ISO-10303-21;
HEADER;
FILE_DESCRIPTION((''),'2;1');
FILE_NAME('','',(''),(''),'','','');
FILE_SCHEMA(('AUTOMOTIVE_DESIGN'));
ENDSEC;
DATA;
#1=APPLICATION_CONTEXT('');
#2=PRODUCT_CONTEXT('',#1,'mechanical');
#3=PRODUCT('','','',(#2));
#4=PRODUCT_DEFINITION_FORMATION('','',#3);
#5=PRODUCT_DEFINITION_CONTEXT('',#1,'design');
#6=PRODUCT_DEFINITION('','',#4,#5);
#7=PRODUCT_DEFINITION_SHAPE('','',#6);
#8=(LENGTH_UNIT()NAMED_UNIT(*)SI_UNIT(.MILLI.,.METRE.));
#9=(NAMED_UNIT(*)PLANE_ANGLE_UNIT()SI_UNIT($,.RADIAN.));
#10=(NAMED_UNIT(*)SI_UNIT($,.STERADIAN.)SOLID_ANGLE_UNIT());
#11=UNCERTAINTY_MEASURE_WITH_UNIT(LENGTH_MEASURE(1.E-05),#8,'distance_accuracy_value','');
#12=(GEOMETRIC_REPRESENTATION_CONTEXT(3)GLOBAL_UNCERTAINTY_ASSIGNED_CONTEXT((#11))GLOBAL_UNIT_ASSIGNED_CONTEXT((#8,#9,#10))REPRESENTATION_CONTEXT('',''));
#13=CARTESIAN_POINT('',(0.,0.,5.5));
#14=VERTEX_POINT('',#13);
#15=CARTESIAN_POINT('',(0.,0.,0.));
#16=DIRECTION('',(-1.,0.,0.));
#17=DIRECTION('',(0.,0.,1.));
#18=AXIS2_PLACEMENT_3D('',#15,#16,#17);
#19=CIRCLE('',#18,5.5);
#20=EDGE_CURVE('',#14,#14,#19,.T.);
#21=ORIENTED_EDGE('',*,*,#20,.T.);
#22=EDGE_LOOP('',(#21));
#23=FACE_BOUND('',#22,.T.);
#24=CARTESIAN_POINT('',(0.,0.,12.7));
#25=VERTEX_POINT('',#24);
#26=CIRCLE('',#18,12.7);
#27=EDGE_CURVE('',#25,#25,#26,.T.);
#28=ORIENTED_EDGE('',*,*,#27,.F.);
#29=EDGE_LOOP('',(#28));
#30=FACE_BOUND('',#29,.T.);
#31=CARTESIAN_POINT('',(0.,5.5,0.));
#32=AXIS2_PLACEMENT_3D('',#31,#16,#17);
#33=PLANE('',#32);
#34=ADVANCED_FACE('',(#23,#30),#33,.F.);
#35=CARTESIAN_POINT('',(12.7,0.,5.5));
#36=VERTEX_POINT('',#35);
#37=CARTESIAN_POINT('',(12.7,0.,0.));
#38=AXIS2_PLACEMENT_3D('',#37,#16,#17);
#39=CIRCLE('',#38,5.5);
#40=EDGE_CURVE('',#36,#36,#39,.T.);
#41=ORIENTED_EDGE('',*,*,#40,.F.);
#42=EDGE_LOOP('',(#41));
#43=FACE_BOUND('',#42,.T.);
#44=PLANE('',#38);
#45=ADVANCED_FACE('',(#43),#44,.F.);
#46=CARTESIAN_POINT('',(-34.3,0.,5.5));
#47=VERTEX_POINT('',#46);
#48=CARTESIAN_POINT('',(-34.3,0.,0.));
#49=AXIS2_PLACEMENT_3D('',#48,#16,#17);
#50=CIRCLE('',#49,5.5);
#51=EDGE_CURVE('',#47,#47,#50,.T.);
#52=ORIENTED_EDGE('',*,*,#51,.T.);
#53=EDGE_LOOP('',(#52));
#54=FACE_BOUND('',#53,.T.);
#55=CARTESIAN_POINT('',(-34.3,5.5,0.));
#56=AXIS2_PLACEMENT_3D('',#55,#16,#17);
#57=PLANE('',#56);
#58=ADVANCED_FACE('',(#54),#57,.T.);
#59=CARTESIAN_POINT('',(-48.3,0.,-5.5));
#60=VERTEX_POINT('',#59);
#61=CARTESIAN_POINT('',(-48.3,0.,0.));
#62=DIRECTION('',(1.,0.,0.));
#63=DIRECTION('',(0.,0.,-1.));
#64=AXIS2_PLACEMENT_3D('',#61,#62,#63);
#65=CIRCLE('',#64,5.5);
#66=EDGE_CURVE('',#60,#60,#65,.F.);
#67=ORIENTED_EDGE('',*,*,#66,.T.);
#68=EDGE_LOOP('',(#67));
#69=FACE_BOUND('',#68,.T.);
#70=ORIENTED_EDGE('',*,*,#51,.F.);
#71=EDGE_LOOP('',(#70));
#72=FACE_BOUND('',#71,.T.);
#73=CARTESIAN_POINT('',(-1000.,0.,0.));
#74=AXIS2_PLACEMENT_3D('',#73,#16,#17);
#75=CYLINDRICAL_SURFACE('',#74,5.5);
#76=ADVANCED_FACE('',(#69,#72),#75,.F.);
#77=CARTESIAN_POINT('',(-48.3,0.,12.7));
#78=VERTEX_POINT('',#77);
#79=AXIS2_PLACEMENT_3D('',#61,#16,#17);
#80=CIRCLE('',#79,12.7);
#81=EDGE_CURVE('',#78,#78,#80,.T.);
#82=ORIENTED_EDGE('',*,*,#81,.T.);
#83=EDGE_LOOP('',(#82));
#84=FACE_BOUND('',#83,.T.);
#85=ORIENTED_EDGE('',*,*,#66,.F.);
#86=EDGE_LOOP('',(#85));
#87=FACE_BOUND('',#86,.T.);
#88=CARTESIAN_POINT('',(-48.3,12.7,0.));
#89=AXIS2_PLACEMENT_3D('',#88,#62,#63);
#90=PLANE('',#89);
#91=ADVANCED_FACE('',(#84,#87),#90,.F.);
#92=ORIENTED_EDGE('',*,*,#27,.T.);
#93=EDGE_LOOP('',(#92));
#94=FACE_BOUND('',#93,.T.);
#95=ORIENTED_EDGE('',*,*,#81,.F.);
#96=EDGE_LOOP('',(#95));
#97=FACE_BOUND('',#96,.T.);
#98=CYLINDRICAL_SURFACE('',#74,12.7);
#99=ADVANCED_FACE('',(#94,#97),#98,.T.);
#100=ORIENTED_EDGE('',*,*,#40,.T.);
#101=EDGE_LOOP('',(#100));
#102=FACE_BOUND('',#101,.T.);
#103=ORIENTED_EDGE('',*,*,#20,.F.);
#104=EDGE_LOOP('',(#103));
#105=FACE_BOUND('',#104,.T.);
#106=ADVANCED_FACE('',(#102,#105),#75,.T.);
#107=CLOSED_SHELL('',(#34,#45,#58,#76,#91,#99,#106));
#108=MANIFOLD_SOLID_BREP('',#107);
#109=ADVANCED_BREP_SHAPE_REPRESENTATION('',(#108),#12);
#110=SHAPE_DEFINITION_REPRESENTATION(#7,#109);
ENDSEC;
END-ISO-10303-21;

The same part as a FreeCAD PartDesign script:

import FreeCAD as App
import Part
import Sketcher

doc = App.newDocument("Part")
body = doc.addObject("PartDesign::Body", "Body")

# Sketch on XY plane
sketch1 = body.newObject("Sketcher::SketchObject", "Sketch")
sketch1.AttachmentSupport = (doc.getObject("XY_Plane"), [""])
sketch1.MapMode = "FlatFace"
sketch1.addGeometry([
    Part.LineSegment(App.Vector(13, 0, 0), App.Vector(13, 6, 0)),  # 0
    Part.LineSegment(App.Vector(13, 6, 0), App.Vector(0, 6, 0)),  # 1
    Part.LineSegment(App.Vector(0, 6, 0), App.Vector(0, 13, 0)),  # 2
    Part.LineSegment(App.Vector(0, 13, 0), App.Vector(-48, 13, 0)),  # 3
    Part.LineSegment(App.Vector(-48, 13, 0), App.Vector(-48, 0, 0)),  # 4
    Part.LineSegment(App.Vector(-48, 0, 0), App.Vector(13, 0, 0)),  # 5
], False)
sketch1.addConstraint([
    Sketcher.Constraint("Coincident", 0, 2, 1, 1),
    Sketcher.Constraint("Coincident", 1, 2, 2, 1),
    Sketcher.Constraint("Coincident", 2, 2, 3, 1),
    Sketcher.Constraint("Coincident", 3, 2, 4, 1),
    Sketcher.Constraint("Coincident", 4, 2, 5, 1),
    Sketcher.Constraint("Coincident", 5, 2, 0, 1),
    Sketcher.Constraint("Vertical", 0),
    Sketcher.Constraint("Horizontal", 1),
    Sketcher.Constraint("Vertical", 2),
    Sketcher.Constraint("Horizontal", 3),
    Sketcher.Constraint("Vertical", 4),
    Sketcher.Constraint("Horizontal", 5),
    Sketcher.Constraint("PointOnObject", 1, 2, -2),
    Sketcher.Constraint("PointOnObject", 4, 2, -1),
    Sketcher.Constraint("Equal", 1, 4),
    Sketcher.Constraint("DistanceX", 5, 1, 5, 2, 61.0),
    Sketcher.Constraint("DistanceX", 1, 2, 1, 1, 12.7),
    Sketcher.Constraint("DistanceY", 0, 1, 0, 2, 5.5),
])
revolution = body.newObject("PartDesign::Revolution", "Revolution")
revolution.Profile = sketch1
revolution.ReferenceAxis = (sketch1, ["H_Axis"])
revolution.Angle = 360

# Sketch on XY plane
sketch2 = body.newObject("Sketcher::SketchObject", "Sketch001")
sketch2.AttachmentSupport = (doc.getObject("XY_Plane"), [""])
sketch2.MapMode = "FlatFace"
sketch2.addGeometry([
    Part.LineSegment(App.Vector(-49, 6, 0), App.Vector(-49, 0, 0)),
    Part.LineSegment(App.Vector(-49, 0, 0), App.Vector(-34, 0, 0)),
    Part.LineSegment(App.Vector(-34, 0, 0), App.Vector(-34, 6, 0)),
    Part.LineSegment(App.Vector(-34, 6, 0), App.Vector(-49, 6, 0)),
], False)
sketch2.addConstraint([
    Sketcher.Constraint("Coincident", 0, 2, 1, 1),
    Sketcher.Constraint("Coincident", 1, 2, 2, 1),
    Sketcher.Constraint("Coincident", 2, 2, 3, 1),
    Sketcher.Constraint("Coincident", 3, 2, 0, 1),
    Sketcher.Constraint("Vertical", 0),
    Sketcher.Constraint("Horizontal", 1),
    Sketcher.Constraint("Vertical", 2),
    Sketcher.Constraint("Horizontal", 3),
    Sketcher.Constraint("PointOnObject", 0, 2, -1),
    Sketcher.Constraint("DistanceX", 1, 1, 1, 2, 15.0),
    Sketcher.Constraint("DistanceY", 0, 2, 0, 1, 5.5),
    Sketcher.Constraint("DistanceX", 0, 2, -1, 1, 49.3),
])
groove = body.newObject("PartDesign::Groove", "Groove")
groove.Profile = sketch2
groove.ReferenceAxis = (sketch2, ["H_Axis"])
groove.Angle = 360

doc.recompute()
